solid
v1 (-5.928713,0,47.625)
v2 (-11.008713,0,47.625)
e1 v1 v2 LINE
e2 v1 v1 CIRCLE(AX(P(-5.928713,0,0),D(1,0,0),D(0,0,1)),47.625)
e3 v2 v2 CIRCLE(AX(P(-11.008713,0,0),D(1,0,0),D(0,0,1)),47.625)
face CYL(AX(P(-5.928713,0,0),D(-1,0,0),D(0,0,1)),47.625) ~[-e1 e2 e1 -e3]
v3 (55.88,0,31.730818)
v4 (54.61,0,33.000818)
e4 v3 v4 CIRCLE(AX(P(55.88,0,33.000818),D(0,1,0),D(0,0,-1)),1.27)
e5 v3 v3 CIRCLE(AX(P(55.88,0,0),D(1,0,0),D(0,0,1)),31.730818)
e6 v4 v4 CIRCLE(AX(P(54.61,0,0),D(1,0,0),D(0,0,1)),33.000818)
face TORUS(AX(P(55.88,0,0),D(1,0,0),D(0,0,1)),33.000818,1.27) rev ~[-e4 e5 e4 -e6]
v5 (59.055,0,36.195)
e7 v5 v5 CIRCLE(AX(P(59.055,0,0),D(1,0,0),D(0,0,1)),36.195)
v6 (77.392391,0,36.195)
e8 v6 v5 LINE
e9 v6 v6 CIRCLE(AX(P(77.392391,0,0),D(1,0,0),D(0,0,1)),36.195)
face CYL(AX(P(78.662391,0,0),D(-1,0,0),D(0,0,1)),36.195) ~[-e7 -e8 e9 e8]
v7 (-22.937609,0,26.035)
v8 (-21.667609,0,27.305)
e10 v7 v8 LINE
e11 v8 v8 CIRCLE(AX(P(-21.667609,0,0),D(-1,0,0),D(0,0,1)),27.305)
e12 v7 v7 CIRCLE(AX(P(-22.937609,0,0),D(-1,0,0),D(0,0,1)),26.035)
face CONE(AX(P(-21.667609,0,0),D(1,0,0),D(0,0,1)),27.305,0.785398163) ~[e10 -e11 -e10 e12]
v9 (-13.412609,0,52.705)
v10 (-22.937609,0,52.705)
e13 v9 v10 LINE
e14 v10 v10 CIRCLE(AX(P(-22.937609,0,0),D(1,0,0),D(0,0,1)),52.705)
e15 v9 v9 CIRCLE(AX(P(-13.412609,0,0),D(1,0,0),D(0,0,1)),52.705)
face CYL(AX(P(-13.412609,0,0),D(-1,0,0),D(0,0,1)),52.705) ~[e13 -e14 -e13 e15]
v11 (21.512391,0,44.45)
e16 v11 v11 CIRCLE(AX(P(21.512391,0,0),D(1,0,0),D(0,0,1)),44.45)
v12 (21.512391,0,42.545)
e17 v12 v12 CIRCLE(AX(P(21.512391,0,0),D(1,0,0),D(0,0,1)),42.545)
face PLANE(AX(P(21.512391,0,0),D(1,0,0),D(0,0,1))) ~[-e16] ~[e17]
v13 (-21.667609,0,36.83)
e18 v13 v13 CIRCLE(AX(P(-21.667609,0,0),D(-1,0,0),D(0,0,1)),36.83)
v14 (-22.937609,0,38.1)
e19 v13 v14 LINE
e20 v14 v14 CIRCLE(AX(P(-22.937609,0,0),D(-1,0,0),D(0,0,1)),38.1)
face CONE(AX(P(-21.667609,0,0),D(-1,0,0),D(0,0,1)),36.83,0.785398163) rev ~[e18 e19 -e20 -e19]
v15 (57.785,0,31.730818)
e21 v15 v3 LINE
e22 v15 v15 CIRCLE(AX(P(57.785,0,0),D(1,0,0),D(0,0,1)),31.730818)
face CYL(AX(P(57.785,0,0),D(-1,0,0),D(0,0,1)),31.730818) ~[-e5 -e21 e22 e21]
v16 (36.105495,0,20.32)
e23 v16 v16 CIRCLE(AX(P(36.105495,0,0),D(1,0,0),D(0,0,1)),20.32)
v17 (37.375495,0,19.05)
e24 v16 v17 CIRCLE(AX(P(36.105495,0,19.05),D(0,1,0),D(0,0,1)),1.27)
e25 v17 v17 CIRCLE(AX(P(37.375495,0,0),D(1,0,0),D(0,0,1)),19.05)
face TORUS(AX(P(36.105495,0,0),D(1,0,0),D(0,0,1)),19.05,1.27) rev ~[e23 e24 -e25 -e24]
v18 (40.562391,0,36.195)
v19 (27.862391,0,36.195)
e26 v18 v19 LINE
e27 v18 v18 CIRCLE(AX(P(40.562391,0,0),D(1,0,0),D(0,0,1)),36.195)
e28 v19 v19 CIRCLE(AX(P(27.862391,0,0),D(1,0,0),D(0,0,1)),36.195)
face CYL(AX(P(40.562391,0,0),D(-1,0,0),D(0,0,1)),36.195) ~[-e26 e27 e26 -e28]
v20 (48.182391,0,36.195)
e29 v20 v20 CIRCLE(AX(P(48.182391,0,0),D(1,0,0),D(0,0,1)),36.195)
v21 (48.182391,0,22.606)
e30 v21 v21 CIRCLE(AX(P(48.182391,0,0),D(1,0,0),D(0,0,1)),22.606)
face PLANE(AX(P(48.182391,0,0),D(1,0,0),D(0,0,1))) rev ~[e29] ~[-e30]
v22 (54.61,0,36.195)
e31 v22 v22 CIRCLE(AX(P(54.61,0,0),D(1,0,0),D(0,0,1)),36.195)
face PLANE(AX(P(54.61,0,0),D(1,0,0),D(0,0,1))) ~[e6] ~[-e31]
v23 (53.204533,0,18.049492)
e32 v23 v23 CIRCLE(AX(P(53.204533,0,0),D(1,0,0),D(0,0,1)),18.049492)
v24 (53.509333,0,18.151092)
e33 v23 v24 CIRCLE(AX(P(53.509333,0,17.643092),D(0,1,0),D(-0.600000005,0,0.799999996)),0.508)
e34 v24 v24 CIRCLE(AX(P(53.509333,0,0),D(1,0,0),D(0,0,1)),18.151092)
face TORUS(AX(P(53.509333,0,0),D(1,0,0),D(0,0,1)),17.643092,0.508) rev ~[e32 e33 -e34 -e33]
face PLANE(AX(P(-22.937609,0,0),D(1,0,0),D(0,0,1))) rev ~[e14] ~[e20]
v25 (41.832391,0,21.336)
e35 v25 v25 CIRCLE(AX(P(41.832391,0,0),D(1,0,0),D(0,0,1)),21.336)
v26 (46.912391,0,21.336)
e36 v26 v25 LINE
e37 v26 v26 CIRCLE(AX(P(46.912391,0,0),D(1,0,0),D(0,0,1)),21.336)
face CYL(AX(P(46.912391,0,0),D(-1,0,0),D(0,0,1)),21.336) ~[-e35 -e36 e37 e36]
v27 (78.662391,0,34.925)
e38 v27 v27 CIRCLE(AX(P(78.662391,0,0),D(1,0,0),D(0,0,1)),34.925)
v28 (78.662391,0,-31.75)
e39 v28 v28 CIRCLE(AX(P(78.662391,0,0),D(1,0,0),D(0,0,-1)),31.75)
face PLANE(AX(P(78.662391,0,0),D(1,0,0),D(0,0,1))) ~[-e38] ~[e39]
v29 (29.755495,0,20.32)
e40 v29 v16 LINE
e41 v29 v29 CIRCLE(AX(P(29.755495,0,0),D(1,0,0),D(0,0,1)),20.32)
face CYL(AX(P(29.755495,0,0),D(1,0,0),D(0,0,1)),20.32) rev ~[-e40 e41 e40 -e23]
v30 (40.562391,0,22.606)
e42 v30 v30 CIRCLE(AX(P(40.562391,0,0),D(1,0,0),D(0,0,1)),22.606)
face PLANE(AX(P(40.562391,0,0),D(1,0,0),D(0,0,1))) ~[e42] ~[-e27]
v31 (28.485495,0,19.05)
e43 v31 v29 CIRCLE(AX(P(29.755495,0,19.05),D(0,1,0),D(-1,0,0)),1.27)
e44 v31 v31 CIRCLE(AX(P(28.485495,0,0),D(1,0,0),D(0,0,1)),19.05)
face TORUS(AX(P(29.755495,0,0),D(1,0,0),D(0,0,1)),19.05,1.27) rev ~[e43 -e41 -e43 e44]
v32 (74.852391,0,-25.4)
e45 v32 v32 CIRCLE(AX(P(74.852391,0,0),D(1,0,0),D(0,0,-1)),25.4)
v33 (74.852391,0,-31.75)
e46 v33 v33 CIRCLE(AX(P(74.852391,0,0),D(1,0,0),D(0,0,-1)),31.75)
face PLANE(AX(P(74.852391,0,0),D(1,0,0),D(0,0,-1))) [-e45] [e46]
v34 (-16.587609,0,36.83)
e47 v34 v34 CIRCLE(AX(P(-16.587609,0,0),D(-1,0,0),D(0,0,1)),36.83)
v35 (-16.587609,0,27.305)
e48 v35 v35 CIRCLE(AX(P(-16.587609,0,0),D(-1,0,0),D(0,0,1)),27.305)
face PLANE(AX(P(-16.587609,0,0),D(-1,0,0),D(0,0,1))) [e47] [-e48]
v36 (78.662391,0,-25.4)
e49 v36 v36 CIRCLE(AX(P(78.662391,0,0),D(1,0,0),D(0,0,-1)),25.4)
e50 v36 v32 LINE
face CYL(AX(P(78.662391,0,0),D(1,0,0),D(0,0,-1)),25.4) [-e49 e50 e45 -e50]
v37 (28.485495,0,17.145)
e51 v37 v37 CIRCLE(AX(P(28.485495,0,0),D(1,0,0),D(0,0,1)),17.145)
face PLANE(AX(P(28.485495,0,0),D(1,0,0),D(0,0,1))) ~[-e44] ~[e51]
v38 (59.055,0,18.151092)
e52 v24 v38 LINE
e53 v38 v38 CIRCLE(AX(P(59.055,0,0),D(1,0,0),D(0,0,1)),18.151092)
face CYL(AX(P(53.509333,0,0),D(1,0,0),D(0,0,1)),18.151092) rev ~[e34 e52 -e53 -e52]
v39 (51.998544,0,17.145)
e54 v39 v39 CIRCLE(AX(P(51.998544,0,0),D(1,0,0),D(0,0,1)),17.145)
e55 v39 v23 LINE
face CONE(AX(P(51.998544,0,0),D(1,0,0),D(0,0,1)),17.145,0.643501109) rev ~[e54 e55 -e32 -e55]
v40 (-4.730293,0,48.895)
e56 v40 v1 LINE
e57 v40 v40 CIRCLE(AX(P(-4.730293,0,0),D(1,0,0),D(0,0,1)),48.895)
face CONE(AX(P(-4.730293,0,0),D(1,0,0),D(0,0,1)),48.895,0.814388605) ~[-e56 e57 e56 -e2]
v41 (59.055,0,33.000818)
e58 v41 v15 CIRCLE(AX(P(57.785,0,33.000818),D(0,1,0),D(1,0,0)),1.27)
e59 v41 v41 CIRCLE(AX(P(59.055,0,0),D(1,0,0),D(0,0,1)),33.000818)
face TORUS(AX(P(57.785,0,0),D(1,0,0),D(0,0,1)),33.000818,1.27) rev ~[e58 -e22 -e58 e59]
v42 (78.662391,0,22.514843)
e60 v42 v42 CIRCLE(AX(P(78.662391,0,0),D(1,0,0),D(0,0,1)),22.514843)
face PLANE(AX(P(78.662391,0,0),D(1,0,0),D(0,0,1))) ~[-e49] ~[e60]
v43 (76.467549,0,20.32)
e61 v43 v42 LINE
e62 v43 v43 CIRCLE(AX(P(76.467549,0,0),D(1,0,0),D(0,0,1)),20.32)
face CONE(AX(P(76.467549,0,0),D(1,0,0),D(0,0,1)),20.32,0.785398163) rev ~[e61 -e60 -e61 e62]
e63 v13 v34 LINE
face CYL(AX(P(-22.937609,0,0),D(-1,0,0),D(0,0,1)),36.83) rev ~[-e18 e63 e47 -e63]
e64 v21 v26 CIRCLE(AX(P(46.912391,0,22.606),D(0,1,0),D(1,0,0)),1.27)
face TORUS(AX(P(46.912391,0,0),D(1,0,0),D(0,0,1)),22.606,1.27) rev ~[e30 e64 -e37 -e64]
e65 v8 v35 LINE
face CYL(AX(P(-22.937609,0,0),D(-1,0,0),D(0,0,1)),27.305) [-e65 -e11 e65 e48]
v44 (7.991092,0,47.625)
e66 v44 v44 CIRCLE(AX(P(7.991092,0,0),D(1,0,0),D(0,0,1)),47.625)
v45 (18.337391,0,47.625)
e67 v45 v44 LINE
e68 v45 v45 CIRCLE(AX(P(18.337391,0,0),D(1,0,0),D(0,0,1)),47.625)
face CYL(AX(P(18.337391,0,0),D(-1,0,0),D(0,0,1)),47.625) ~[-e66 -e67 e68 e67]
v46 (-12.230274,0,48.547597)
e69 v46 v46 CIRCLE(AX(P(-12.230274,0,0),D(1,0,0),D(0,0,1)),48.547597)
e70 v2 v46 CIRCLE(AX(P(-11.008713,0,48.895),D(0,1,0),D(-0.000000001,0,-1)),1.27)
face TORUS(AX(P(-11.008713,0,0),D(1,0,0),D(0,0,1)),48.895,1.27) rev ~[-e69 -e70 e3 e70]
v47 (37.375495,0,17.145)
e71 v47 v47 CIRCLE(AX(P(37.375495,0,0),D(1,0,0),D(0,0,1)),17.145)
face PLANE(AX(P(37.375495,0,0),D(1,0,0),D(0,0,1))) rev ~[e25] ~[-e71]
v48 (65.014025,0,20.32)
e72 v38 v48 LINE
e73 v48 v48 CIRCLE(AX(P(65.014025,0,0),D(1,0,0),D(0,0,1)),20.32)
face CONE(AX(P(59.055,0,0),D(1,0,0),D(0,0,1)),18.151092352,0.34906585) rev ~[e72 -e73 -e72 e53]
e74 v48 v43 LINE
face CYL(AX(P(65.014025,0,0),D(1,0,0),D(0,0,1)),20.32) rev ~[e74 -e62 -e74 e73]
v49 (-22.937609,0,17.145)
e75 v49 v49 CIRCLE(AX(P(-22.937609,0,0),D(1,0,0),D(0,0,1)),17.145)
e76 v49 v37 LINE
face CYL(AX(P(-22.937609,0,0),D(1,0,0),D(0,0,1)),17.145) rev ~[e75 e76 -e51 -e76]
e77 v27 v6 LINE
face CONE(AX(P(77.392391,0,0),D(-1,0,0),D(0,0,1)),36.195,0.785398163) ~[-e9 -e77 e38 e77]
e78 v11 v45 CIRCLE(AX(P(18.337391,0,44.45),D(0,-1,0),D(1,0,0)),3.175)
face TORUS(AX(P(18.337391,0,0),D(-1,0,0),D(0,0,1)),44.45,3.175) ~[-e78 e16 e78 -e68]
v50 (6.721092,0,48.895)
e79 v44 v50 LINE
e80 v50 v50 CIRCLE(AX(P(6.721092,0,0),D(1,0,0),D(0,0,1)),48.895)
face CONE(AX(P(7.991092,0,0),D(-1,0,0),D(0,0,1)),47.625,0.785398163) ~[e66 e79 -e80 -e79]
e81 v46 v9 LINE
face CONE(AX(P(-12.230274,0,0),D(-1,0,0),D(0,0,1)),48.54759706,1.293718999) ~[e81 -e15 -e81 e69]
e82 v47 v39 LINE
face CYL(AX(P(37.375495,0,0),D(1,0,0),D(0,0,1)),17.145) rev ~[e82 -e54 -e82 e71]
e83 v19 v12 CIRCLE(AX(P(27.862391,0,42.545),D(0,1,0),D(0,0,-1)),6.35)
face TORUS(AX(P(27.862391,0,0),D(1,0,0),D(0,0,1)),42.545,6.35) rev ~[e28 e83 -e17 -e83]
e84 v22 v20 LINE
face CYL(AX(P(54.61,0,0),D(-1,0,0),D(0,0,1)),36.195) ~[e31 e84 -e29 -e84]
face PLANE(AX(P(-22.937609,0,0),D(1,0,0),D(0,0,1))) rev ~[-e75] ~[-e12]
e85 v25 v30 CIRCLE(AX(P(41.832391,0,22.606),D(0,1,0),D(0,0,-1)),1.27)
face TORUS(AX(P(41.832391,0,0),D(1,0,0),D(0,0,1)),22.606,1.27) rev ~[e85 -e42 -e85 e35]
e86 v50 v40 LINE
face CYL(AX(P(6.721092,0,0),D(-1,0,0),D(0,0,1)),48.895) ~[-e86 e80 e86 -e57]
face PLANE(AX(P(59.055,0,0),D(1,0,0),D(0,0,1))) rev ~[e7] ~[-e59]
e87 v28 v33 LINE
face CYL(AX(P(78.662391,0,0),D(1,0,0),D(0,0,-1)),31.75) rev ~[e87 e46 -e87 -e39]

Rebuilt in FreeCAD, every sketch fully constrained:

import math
import FreeCAD as App
import Part
import Sketcher
Q = App.Units.Quantity


def edges_at(feature, points):
    """Names of the edges that pass closest to the given points."""
    edges = feature.Shape.Edges
    near = lambda p: min(range(len(edges)), key=lambda i: edges[i].distToShape(Part.Vertex(*p))[0])
    return sorted({f"Edge{near(p) + 1}" for p in points})

doc = App.newDocument("Part")
body = doc.addObject("PartDesign::Body", "Body")

# Sketch on XY plane
sketch1 = doc.addObject("Sketcher::SketchObject", "Sketch")
body.addObject(sketch1)
sketch1.AttachmentSupport = (doc.XY_Plane, [""])
sketch1.MapMode = "FlatFace"
sketch1.addGeometry([
    Part.LineSegment(App.Vector(78.66, 22.51, 0), App.Vector(78.66, 36.2, 0)),  # 0
    Part.LineSegment(App.Vector(78.66, 36.2, 0), App.Vector(59.05, 36.2, 0)),  # 1
    Part.LineSegment(App.Vector(59.05, 36.2, 0), App.Vector(59.05, 33, 0)),  # 2
    Part.ArcOfCircle(Part.Circle(App.Vector(57.78, 33, 0), App.Vector(0, 0, 1), 1.27), math.radians(-90), math.radians(0)),  # 3
    Part.LineSegment(App.Vector(57.78, 31.73, 0), App.Vector(55.88, 31.73, 0)),  # 4
    Part.ArcOfCircle(Part.Circle(App.Vector(55.88, 33, 0), App.Vector(0, 0, 1), 1.27), math.radians(180), math.radians(270)),  # 5
    Part.LineSegment(App.Vector(54.61, 33, 0), App.Vector(54.61, 36.2, 0)),  # 6
    Part.LineSegment(App.Vector(54.61, 36.2, 0), App.Vector(48.18, 36.2, 0)),  # 7
    Part.LineSegment(App.Vector(48.18, 36.2, 0), App.Vector(48.18, 22.61, 0)),  # 8
    Part.ArcOfCircle(Part.Circle(App.Vector(46.91, 22.61, 0), App.Vector(0, 0, 1), 1.27), math.radians(-90), math.radians(0)),  # 9
    Part.LineSegment(App.Vector(46.91, 21.34, 0), App.Vector(41.83, 21.34, 0)),  # 10
    Part.ArcOfCircle(Part.Circle(App.Vector(41.83, 22.61, 0), App.Vector(0, 0, 1), 1.27), math.radians(180), math.radians(270)),  # 11
    Part.LineSegment(App.Vector(40.56, 22.61, 0), App.Vector(40.56, 36.2, 0)),  # 12
    Part.LineSegment(App.Vector(40.56, 36.2, 0), App.Vector(27.86, 36.2, 0)),  # 13
    Part.ArcOfCircle(Part.Circle(App.Vector(27.86, 42.54, 0), App.Vector(0, 0, 1), 6.35), math.radians(180), math.radians(270)),  # 14
    Part.LineSegment(App.Vector(21.51, 42.55, 0), App.Vector(21.51, 44.45, 0)),  # 15
    Part.ArcOfCircle(Part.Circle(App.Vector(18.34, 44.45, 0), App.Vector(0, 0, 1), 3.18), math.radians(0), math.radians(90)),  # 16
    Part.LineSegment(App.Vector(18.34, 47.62, 0), App.Vector(7.99, 47.62, 0)),  # 17
    Part.LineSegment(App.Vector(7.99, 47.62, 0), App.Vector(6.72, 48.9, 0)),  # 18
    Part.LineSegment(App.Vector(6.72, 48.9, 0), App.Vector(-4.73, 48.9, 0)),  # 19
    Part.LineSegment(App.Vector(-4.73, 48.9, 0), App.Vector(-5.93, 47.62, 0)),  # 20
    Part.LineSegment(App.Vector(-5.93, 47.62, 0), App.Vector(-11.01, 47.62, 0)),  # 21
    Part.ArcOfCircle(Part.Circle(App.Vector(-11.01, 48.9, 0), App.Vector(0, 0, 1), 1.27), math.radians(-164), math.radians(-90)),  # 22
    Part.LineSegment(App.Vector(-12.23, 48.55, 0), App.Vector(-13.41, 52.7, 0)),  # 23
    Part.LineSegment(App.Vector(-13.41, 52.7, 0), App.Vector(-22.94, 52.7, 0)),  # 24
    Part.LineSegment(App.Vector(-22.94, 52.7, 0), App.Vector(-22.94, 17.14, 0)),  # 25
    Part.LineSegment(App.Vector(-22.94, 17.14, 0), App.Vector(28.49, 17.14, 0)),  # 26
    Part.LineSegment(App.Vector(28.49, 17.14, 0), App.Vector(28.49, 19.05, 0)),  # 27
    Part.ArcOfCircle(Part.Circle(App.Vector(29.76, 19.05, 0), App.Vector(0, 0, 1), 1.27), math.radians(90), math.radians(180)),  # 28
    Part.LineSegment(App.Vector(29.76, 20.32, 0), App.Vector(36.11, 20.32, 0)),  # 29
    Part.ArcOfCircle(Part.Circle(App.Vector(36.11, 19.05, 0), App.Vector(0, 0, 1), 1.27), math.radians(0), math.radians(90)),  # 30
    Part.LineSegment(App.Vector(37.38, 19.05, 0), App.Vector(37.38, 17.14, 0)),  # 31
    Part.LineSegment(App.Vector(37.38, 17.14, 0), App.Vector(52, 17.14, 0)),  # 32
    Part.LineSegment(App.Vector(52, 17.14, 0), App.Vector(53.2, 18.05, 0)),  # 33
    Part.ArcOfCircle(Part.Circle(App.Vector(53.51, 17.64, 0), App.Vector(0, 0, 1), 0.51), math.radians(90), math.radians(127)),  # 34
    Part.LineSegment(App.Vector(53.51, 18.15, 0), App.Vector(59.05, 18.15, 0)),  # 35
    Part.LineSegment(App.Vector(59.05, 18.15, 0), App.Vector(65.01, 20.32, 0)),  # 36
    Part.LineSegment(App.Vector(65.01, 20.32, 0), App.Vector(76.47, 20.32, 0)),  # 37
    Part.LineSegment(App.Vector(76.47, 20.32, 0), App.Vector(78.66, 22.51, 0)),  # 38
], False)
sketch1.addConstraint([
    Sketcher.Constraint("Coincident", 0, 2, 1, 1),
    Sketcher.Constraint("Coincident", 1, 2, 2, 1),
    Sketcher.Constraint("Tangent", 2, 2, 3, 2),
    Sketcher.Constraint("Tangent", 3, 1, 4, 1),
    Sketcher.Constraint("Tangent", 4, 2, 5, 2),
    Sketcher.Constraint("Tangent", 5, 1, 6, 1),
    Sketcher.Constraint("Coincident", 6, 2, 7, 1),
    Sketcher.Constraint("Coincident", 7, 2, 8, 1),
    Sketcher.Constraint("Tangent", 8, 2, 9, 2),
    Sketcher.Constraint("Tangent", 9, 1, 10, 1),
    Sketcher.Constraint("Tangent", 10, 2, 11, 2),
    Sketcher.Constraint("Tangent", 11, 1, 12, 1),
    Sketcher.Constraint("Coincident", 12, 2, 13, 1),
    Sketcher.Constraint("Tangent", 13, 2, 14, 2),
    Sketcher.Constraint("Tangent", 14, 1, 15, 1),
    Sketcher.Constraint("Tangent", 15, 2, 16, 1),
    Sketcher.Constraint("Tangent", 16, 2, 17, 1),
    Sketcher.Constraint("Coincident", 17, 2, 18, 1),
    Sketcher.Constraint("Coincident", 18, 2, 19, 1),
    Sketcher.Constraint("Coincident", 19, 2, 20, 1),
    Sketcher.Constraint("Coincident", 20, 2, 21, 1),
    Sketcher.Constraint("Tangent", 21, 2, 22, 2),
    Sketcher.Constraint("Tangent", 22, 1, 23, 1),
    Sketcher.Constraint("Coincident", 23, 2, 24, 1),
    Sketcher.Constraint("Coincident", 24, 2, 25, 1),
    Sketcher.Constraint("Coincident", 25, 2, 26, 1),
    Sketcher.Constraint("Coincident", 26, 2, 27, 1),
    Sketcher.Constraint("Tangent", 27, 2, 28, 2),
    Sketcher.Constraint("Tangent", 28, 1, 29, 1),
    Sketcher.Constraint("Tangent", 29, 2, 30, 2),
    Sketcher.Constraint("Tangent", 30, 1, 31, 1),
    Sketcher.Constraint("Coincident", 31, 2, 32, 1),
    Sketcher.Constraint("Coincident", 32, 2, 33, 1),
    Sketcher.Constraint("Tangent", 33, 2, 34, 2),
    Sketcher.Constraint("Tangent", 34, 1, 35, 1),
    Sketcher.Constraint("Coincident", 35, 2, 36, 1),
    Sketcher.Constraint("Coincident", 36, 2, 37, 1),
    Sketcher.Constraint("Coincident", 37, 2, 38, 1),
    Sketcher.Constraint("Coincident", 38, 2, 0, 1),
    Sketcher.Constraint("Vertical", 0),
    Sketcher.Constraint("Horizontal", 1),
    Sketcher.Constraint("Vertical", 2),
    Sketcher.Constraint("Horizontal", 4),
    Sketcher.Constraint("Vertical", 6),
    Sketcher.Constraint("Horizontal", 7),
    Sketcher.Constraint("Vertical", 8),
    Sketcher.Constraint("Horizontal", 10),
    Sketcher.Constraint("Vertical", 12),
    Sketcher.Constraint("Horizontal", 13),
    Sketcher.Constraint("Vertical", 15),
    Sketcher.Constraint("Horizontal", 17),
    Sketcher.Constraint("Horizontal", 19),
    Sketcher.Constraint("Horizontal", 21),
    Sketcher.Constraint("Horizontal", 24),
    Sketcher.Constraint("Vertical", 25),
    Sketcher.Constraint("Horizontal", 26),
    Sketcher.Constraint("Vertical", 27),
    Sketcher.Constraint("Horizontal", 29),
    Sketcher.Constraint("Vertical", 31),
    Sketcher.Constraint("Horizontal", 32),
    Sketcher.Constraint("Horizontal", 35),
    Sketcher.Constraint("Horizontal", 37),
    Sketcher.Constraint("Equal", 3, 5),
    Sketcher.Constraint("Equal", 5, 9),
    Sketcher.Constraint("Equal", 9, 11),
    Sketcher.Constraint("Equal", 11, 22),
    Sketcher.Constraint("Equal", 22, 28),
    Sketcher.Constraint("Equal", 28, 30),
    Sketcher.Constraint("Perpendicular", 18, 38),
    Sketcher.Constraint("Horizontal", 1, 2, 6, 2),
    Sketcher.Constraint("Horizontal", 7, 2, 12, 2),
    Sketcher.Constraint("Horizontal", 22, 3, 18, 2),
    Sketcher.Constraint("Horizontal", 17, 2, 20, 2),
    Sketcher.Constraint("Horizontal", 26, 2, 31, 2),
    Sketcher.Constraint("Horizontal", 29, 2, 36, 2),
    Sketcher.Constraint("Vertical", 2, 2, 35, 2),
    Sketcher.Constraint("Equal", 10, 21),
    Sketcher.Constraint("Equal", 4, 15),
    Sketcher.Constraint("Equal", 15, 27),
    Sketcher.Constraint("Radius", 3, Q("0.05 in")),
    Sketcher.Constraint("Radius", 14, Q("0.25 in")),
    Sketcher.Constraint("Radius", 34, Q("0.02 in")),
    Sketcher.Constraint("DistanceX", 10, 2, 10, 1, Q("0.2 in")),
    Sketcher.Constraint("DistanceX", 13, 2, 13, 1, Q("0.5 in")),
    Sketcher.Constraint("DistanceY", 25, 2, 25, 1, Q("1.4 in")),
    Sketcher.Constraint("Angle", 18, Q("135 deg")),
    Sketcher.Constraint("Angle", 36, Q("20 deg")),
    Sketcher.Constraint("Radius", 16, Q("0.125 in")),
    Sketcher.Constraint("DistanceY", 28, 3, 16, 3, Q("1 in")),
    Sketcher.Constraint("DistanceX", 29, 1, 29, 2, Q("0.25 in")),
    Sketcher.Constraint("DistanceX", -1, 1, 5, 3, Q("2.2 in")),
    Sketcher.Constraint("DistanceY", -1, 1, 28, 1, Q("0.8 in")),
    Sketcher.Constraint("DistanceY", 14, 1, 16, 2, Q("0.2 in")),
    Sketcher.Constraint("DistanceX", 24, 2, 24, 1, Q("0.375 in")),
    Sketcher.Constraint("DistanceY", 8, 2, 8, 1, Q("0.535 in")),
    Sketcher.Constraint("DistanceX", 9, 3, 0, 2, Q("1.25 in")),
    Sketcher.Constraint("DistanceX", 33, 2, 34, 3, Q("0.012 in")),
    Sketcher.Constraint("DistanceX", 17, 2, 17, 1, 10.346299),
    Sketcher.Constraint("DistanceX", 1, 2, 1, 1, 19.607391),
    Sketcher.Constraint("DistanceX", 32, 1, 32, 2, 14.623048),
    Sketcher.Constraint("Distance", 20, 1.74617),
    Sketcher.Constraint("Distance", 23, 4.322258),
    Sketcher.Constraint("Distance", 36, 6.341462),
    Sketcher.Constraint("DistanceX", 19, 2, 19, 1, 11.451386),
    Sketcher.Constraint("DistanceX", 26, 1, 26, 2, 51.423104),
    Sketcher.Constraint("DistanceX", 37, 1, 37, 2, 11.453524),
    Sketcher.Constraint("DistanceY", 2, 2, 2, 1, 3.194182),
])
revolution = doc.addObject("PartDesign::Revolution", "Revolution")
body.addObject(revolution)
revolution.Profile = sketch1
revolution.ReferenceAxis = (sketch1, ["H_Axis"])
revolution.Angle = 360
doc.recompute()

chamfer = doc.addObject("PartDesign::Chamfer", "Chamfer")
body.addObject(chamfer)
chamfer.Base = (revolution, edges_at(revolution, [(78.662, 0, -36.195)]))
chamfer.Size = Q("0.05 in")

# Sketch on YZ plane
sketch2 = doc.addObject("Sketcher::SketchObject", "Sketch001")
body.addObject(sketch2)
sketch2.AttachmentSupport = (doc.YZ_Plane, [""])
sketch2.MapMode = "FlatFace"
sketch2.AttachmentOffset = App.Placement(App.Vector(0, 0, 78.662391), App.Rotation())
sketch2.addGeometry([
    Part.Circle(App.Vector(0, 0, 0), App.Vector(0, 0, 1), 32),
    Part.Circle(App.Vector(0, 0, 0), App.Vector(0, 0, 1), 25),
], False)
sketch2.addConstraint([
    Sketcher.Constraint("Coincident", 0, 3, -1, 1),
    Sketcher.Constraint("Coincident", 1, 3, -1, 1),
    Sketcher.Constraint("Diameter", 1, Q("2 in")),
    Sketcher.Constraint("Diameter", 0, Q("2.5 in")),
])
pocket1 = doc.addObject("PartDesign::Pocket", "Pocket")
body.addObject(pocket1)
pocket1.Profile = sketch2
pocket1.Length = Q("0.15 in")

# Sketch on YZ plane
sketch3 = doc.addObject("Sketcher::SketchObject", "Sketch002")
body.addObject(sketch3)
sketch3.AttachmentSupport = (doc.YZ_Plane, [""])
sketch3.MapMode = "FlatFace"
sketch3.AttachmentOffset = App.Placement(App.Vector(0, 0, -22.937609), App.Rotation())
sketch3.addGeometry([
    Part.Circle(App.Vector(0, 0, 0), App.Vector(0, 0, 1), 37),
    Part.Circle(App.Vector(0, 0, 0), App.Vector(0, 0, 1), 27),
], False)
sketch3.addConstraint([
    Sketcher.Constraint("Coincident", 0, 3, -1, 1),
    Sketcher.Constraint("Coincident", 1, 3, -1, 1),
    Sketcher.Constraint("Diameter", 0, Q("2.9 in")),
    Sketcher.Constraint("Diameter", 1, Q("2.15 in")),
])
pocket2 = doc.addObject("PartDesign::Pocket", "Pocket001")
body.addObject(pocket2)
pocket2.Profile = sketch3
pocket2.Length = Q("0.25 in")
pocket2.Reversed = True
doc.recompute()

chamfer2 = doc.addObject("PartDesign::Chamfer", "Chamfer001")
body.addObject(chamfer2)
chamfer2.Base = (pocket2, edges_at(pocket2, [(-22.938, 0, -27.305), (-22.938, 0, -36.83)]))
chamfer2.Size = Q("0.05 in")

doc.recompute()
